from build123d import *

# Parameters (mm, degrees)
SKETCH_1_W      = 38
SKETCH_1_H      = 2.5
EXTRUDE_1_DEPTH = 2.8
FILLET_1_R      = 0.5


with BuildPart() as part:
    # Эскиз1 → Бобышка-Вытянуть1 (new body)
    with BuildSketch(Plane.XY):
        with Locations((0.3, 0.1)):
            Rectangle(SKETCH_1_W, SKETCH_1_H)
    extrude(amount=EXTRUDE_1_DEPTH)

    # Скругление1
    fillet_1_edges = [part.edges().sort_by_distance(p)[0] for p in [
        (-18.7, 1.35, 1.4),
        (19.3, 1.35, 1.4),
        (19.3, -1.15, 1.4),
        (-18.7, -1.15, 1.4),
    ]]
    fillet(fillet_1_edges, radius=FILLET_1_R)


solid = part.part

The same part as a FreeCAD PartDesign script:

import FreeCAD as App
import Part
import Sketcher
Q = App.Units.Quantity


def edges_at(feature, points):
    """Names of the edges that pass closest to the given points."""
    edges = feature.Shape.Edges
    near = lambda p: min(range(len(edges)), key=lambda i: edges[i].distToShape(Part.Vertex(*p))[0])
    return sorted({f"Edge{near(p) + 1}" for p in points})


def add_polygon(sketch, points):
    """Adds a closed chain of lines whose ends are joined by coincident constraints."""
    first, n = sketch.GeometryCount, len(points)
    for a, b in zip(points, points[1:] + points[:1]):
        sketch.addGeometry(Part.LineSegment(App.Vector(*a, 0), App.Vector(*b, 0)), False)
    for i in range(n):
        sketch.addConstraint(Sketcher.Constraint("Coincident", first + i, 2, first + (i + 1) % n, 1))

doc = App.newDocument("Part")
body = doc.addObject("PartDesign::Body", "Body")

sketch1 = body.newObject("Sketcher::SketchObject", "Sketch")
sketch1.AttachmentSupport = (doc.getObject("XY_Plane"), [""])
sketch1.MapMode = "FlatFace"
add_polygon(sketch1, [(-18.7, 1.4), (-18.7, -1.1), (19.3, -1.1), (19.3, 1.4)])
sketch1.addConstraint([
    Sketcher.Constraint("Vertical", 0),
    Sketcher.Constraint("Horizontal", 1),
    Sketcher.Constraint("Vertical", 2),
    Sketcher.Constraint("Horizontal", 3),
    Sketcher.Constraint("DistanceX", 1, 1, 1, 2, Q("38 mm")),
    Sketcher.Constraint("DistanceY", 0, 2, 0, 1, Q("2.5 mm")),
    Sketcher.Constraint("DistanceX", 0, 2, -1, 1, Q("18.7 mm")),
    Sketcher.Constraint("DistanceY", 0, 2, -1, 1, Q("1.15 mm")),
])
pad1 = body.newObject("PartDesign::Pad", "Pad")
pad1.Profile = sketch1
pad1.Length = 2.8
doc.recompute()

fillet = body.newObject("PartDesign::Fillet", "Fillet")
fillet.Base = (pad1, edges_at(pad1, [
    (-18.7, 1.35, 1.4),
    (19.3, 1.35, 1.4),
    (19.3, -1.15, 1.4),
    (-18.7, -1.15, 1.4),
]))
fillet.Radius = 0.5

doc.recompute()
